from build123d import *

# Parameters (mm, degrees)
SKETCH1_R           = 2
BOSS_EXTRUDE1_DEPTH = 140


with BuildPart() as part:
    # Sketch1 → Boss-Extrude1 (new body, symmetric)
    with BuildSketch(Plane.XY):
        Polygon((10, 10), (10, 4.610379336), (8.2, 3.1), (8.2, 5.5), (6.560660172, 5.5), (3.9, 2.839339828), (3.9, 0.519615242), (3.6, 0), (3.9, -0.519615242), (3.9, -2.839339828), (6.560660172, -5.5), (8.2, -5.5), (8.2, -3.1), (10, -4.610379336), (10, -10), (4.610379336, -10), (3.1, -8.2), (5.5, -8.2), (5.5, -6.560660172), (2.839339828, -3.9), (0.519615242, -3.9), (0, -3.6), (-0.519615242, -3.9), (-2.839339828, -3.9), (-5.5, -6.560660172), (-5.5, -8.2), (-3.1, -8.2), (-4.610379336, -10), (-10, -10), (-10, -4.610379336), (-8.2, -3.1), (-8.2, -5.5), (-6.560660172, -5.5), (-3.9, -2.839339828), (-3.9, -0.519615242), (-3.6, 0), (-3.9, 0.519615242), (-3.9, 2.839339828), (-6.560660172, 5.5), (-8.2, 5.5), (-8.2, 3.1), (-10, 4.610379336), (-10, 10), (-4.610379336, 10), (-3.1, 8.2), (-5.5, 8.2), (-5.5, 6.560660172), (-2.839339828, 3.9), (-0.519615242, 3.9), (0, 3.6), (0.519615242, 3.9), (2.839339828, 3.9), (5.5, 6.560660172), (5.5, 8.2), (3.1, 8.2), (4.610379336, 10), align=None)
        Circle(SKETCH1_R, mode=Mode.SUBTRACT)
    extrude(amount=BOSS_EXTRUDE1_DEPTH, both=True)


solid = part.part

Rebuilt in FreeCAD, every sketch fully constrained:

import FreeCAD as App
import Part
import Sketcher
Q = App.Units.Quantity

doc = App.newDocument("Part")
body = doc.addObject("PartDesign::Body", "Body")

sketch1 = doc.addObject("Sketcher::SketchObject", "Sketch")
body.addObject(sketch1)
sketch1.AttachmentSupport = (doc.XY_Plane, [""])
sketch1.MapMode = "FlatFace"
sketch1.addGeometry(Part.LineSegment(App.Vector(10, 4.6, 0), App.Vector(10, 10, 0)), False)
sketch1.addGeometry(Part.LineSegment(App.Vector(10, 10, 0), App.Vector(4.6, 10, 0)), False)
sketch1.addGeometry(Part.LineSegment(App.Vector(4.6, 10, 0), App.Vector(3.1, 8.2, 0)), False)
sketch1.addGeometry(Part.LineSegment(App.Vector(3.1, 8.2, 0), App.Vector(5.5, 8.2, 0)), False)
sketch1.addGeometry(Part.LineSegment(App.Vector(5.5, 8.2, 0), App.Vector(5.5, 6.6, 0)), False)
sketch1.addGeometry(Part.LineSegment(App.Vector(5.5, 6.6, 0), App.Vector(2.8, 3.9, 0)), False)
sketch1.addGeometry(Part.LineSegment(App.Vector(2.8, 3.9, 0), App.Vector(0.5, 3.9, 0)), False)
sketch1.addGeometry(Part.LineSegment(App.Vector(0.5, 3.9, 0), App.Vector(0, 3.6, 0)), False)
sketch1.addGeometry(Part.LineSegment(App.Vector(0, 3.6, 0), App.Vector(-0.5, 3.9, 0)), False)
sketch1.addGeometry(Part.LineSegment(App.Vector(-0.5, 3.9, 0), App.Vector(-2.8, 3.9, 0)), False)
sketch1.addGeometry(Part.LineSegment(App.Vector(-2.8, 3.9, 0), App.Vector(-5.5, 6.6, 0)), False)
sketch1.addGeometry(Part.LineSegment(App.Vector(-5.5, 6.6, 0), App.Vector(-5.5, 8.2, 0)), False)
sketch1.addGeometry(Part.LineSegment(App.Vector(-5.5, 8.2, 0), App.Vector(-3.1, 8.2, 0)), False)
sketch1.addGeometry(Part.LineSegment(App.Vector(-3.1, 8.2, 0), App.Vector(-4.6, 10, 0)), False)
sketch1.addGeometry(Part.LineSegment(App.Vector(-4.6, 10, 0), App.Vector(-10, 10, 0)), False)
sketch1.addGeometry(Part.LineSegment(App.Vector(-10, 10, 0), App.Vector(-10, 4.6, 0)), False)
sketch1.addGeometry(Part.LineSegment(App.Vector(-10, 4.6, 0), App.Vector(-8.2, 3.1, 0)), False)
sketch1.addGeometry(Part.LineSegment(App.Vector(-8.2, 3.1, 0), App.Vector(-8.2, 5.5, 0)), False)
sketch1.addGeometry(Part.LineSegment(App.Vector(-8.2, 5.5, 0), App.Vector(-6.6, 5.5, 0)), False)
sketch1.addGeometry(Part.LineSegment(App.Vector(-6.6, 5.5, 0), App.Vector(-3.9, 2.8, 0)), False)
sketch1.addGeometry(Part.LineSegment(App.Vector(-3.9, 2.8, 0), App.Vector(-3.9, 0.5, 0)), False)
sketch1.addGeometry(Part.LineSegment(App.Vector(-3.9, 0.5, 0), App.Vector(-3.6, 0, 0)), False)
sketch1.addGeometry(Part.LineSegment(App.Vector(-3.6, 0, 0), App.Vector(-3.9, -0.5, 0)), False)
sketch1.addGeometry(Part.LineSegment(App.Vector(-3.9, -0.5, 0), App.Vector(-3.9, -2.8, 0)), False)
sketch1.addGeometry(Part.LineSegment(App.Vector(-3.9, -2.8, 0), App.Vector(-6.6, -5.5, 0)), False)
sketch1.addGeometry(Part.LineSegment(App.Vector(-6.6, -5.5, 0), App.Vector(-8.2, -5.5, 0)), False)
sketch1.addGeometry(Part.LineSegment(App.Vector(-8.2, -5.5, 0), App.Vector(-8.2, -3.1, 0)), False)
sketch1.addGeometry(Part.LineSegment(App.Vector(-8.2, -3.1, 0), App.Vector(-10, -4.6, 0)), False)
sketch1.addGeometry(Part.LineSegment(App.Vector(-10, -4.6, 0), App.Vector(-10, -10, 0)), False)
sketch1.addGeometry(Part.LineSegment(App.Vector(-10, -10, 0), App.Vector(-4.6, -10, 0)), False)
sketch1.addGeometry(Part.LineSegment(App.Vector(-4.6, -10, 0), App.Vector(-3.1, -8.2, 0)), False)
sketch1.addGeometry(Part.LineSegment(App.Vector(-3.1, -8.2, 0), App.Vector(-5.5, -8.2, 0)), False)
sketch1.addGeometry(Part.LineSegment(App.Vector(-5.5, -8.2, 0), App.Vector(-5.5, -6.6, 0)), False)
sketch1.addGeometry(Part.LineSegment(App.Vector(-5.5, -6.6, 0), App.Vector(-2.8, -3.9, 0)), False)
sketch1.addGeometry(Part.LineSegment(App.Vector(-2.8, -3.9, 0), App.Vector(-0.5, -3.9, 0)), False)
sketch1.addGeometry(Part.LineSegment(App.Vector(-0.5, -3.9, 0), App.Vector(0, -3.6, 0)), False)
sketch1.addGeometry(Part.LineSegment(App.Vector(0, -3.6, 0), App.Vector(0.5, -3.9, 0)), False)
sketch1.addGeometry(Part.LineSegment(App.Vector(0.5, -3.9, 0), App.Vector(2.8, -3.9, 0)), False)
sketch1.addGeometry(Part.LineSegment(App.Vector(2.8, -3.9, 0), App.Vector(5.5, -6.6, 0)), False)
sketch1.addGeometry(Part.LineSegment(App.Vector(5.5, -6.6, 0), App.Vector(5.5, -8.2, 0)), False)
sketch1.addGeometry(Part.LineSegment(App.Vector(5.5, -8.2, 0), App.Vector(3.1, -8.2, 0)), False)
sketch1.addGeometry(Part.LineSegment(App.Vector(3.1, -8.2, 0), App.Vector(4.6, -10, 0)), False)
sketch1.addGeometry(Part.LineSegment(App.Vector(4.6, -10, 0), App.Vector(10, -10, 0)), False)
sketch1.addGeometry(Part.LineSegment(App.Vector(10, -10, 0), App.Vector(10, -4.6, 0)), False)
sketch1.addGeometry(Part.LineSegment(App.Vector(10, -4.6, 0), App.Vector(8.2, -3.1, 0)), False)
sketch1.addGeometry(Part.LineSegment(App.Vector(8.2, -3.1, 0), App.Vector(8.2, -5.5, 0)), False)
sketch1.addGeometry(Part.LineSegment(App.Vector(8.2, -5.5, 0), App.Vector(6.6, -5.5, 0)), False)
sketch1.addGeometry(Part.LineSegment(App.Vector(6.6, -5.5, 0), App.Vector(3.9, -2.8, 0)), False)
sketch1.addGeometry(Part.LineSegment(App.Vector(3.9, -2.8, 0), App.Vector(3.9, -0.5, 0)), False)
sketch1.addGeometry(Part.LineSegment(App.Vector(3.9, -0.5, 0), App.Vector(3.6, 0, 0)), False)
sketch1.addGeometry(Part.LineSegment(App.Vector(3.6, 0, 0), App.Vector(3.9, 0.5, 0)), False)
sketch1.addGeometry(Part.LineSegment(App.Vector(3.9, 0.5, 0), App.Vector(3.9, 2.8, 0)), False)
sketch1.addGeometry(Part.LineSegment(App.Vector(3.9, 2.8, 0), App.Vector(6.6, 5.5, 0)), False)
sketch1.addGeometry(Part.LineSegment(App.Vector(6.6, 5.5, 0), App.Vector(8.2, 5.5, 0)), False)
sketch1.addGeometry(Part.LineSegment(App.Vector(8.2, 5.5, 0), App.Vector(8.2, 3.1, 0)), False)
sketch1.addGeometry(Part.LineSegment(App.Vector(8.2, 3.1, 0), App.Vector(10, 4.6, 0)), False)
sketch1.addGeometry(Part.Circle(App.Vector(0, 0, 0), App.Vector(0, 0, 1), 2), False)
sketch1.addConstraint(Sketcher.Constraint("Coincident", 0, 2, 1, 1))
sketch1.addConstraint(Sketcher.Constraint("Coincident", 1, 2, 2, 1))
sketch1.addConstraint(Sketcher.Constraint("Coincident", 2, 2, 3, 1))
sketch1.addConstraint(Sketcher.Constraint("Coincident", 3, 2, 4, 1))
sketch1.addConstraint(Sketcher.Constraint("Coincident", 4, 2, 5, 1))
sketch1.addConstraint(Sketcher.Constraint("Coincident", 5, 2, 6, 1))
sketch1.addConstraint(Sketcher.Constraint("Coincident", 6, 2, 7, 1))
sketch1.addConstraint(Sketcher.Constraint("Coincident", 7, 2, 8, 1))
sketch1.addConstraint(Sketcher.Constraint("Coincident", 8, 2, 9, 1))
sketch1.addConstraint(Sketcher.Constraint("Coincident", 9, 2, 10, 1))
sketch1.addConstraint(Sketcher.Constraint("Coincident", 10, 2, 11, 1))
sketch1.addConstraint(Sketcher.Constraint("Coincident", 11, 2, 12, 1))
sketch1.addConstraint(Sketcher.Constraint("Coincident", 12, 2, 13, 1))
sketch1.addConstraint(Sketcher.Constraint("Coincident", 13, 2, 14, 1))
sketch1.addConstraint(Sketcher.Constraint("Coincident", 14, 2, 15, 1))
sketch1.addConstraint(Sketcher.Constraint("Coincident", 15, 2, 16, 1))
sketch1.addConstraint(Sketcher.Constraint("Coincident", 16, 2, 17, 1))
sketch1.addConstraint(Sketcher.Constraint("Coincident", 17, 2, 18, 1))
sketch1.addConstraint(Sketcher.Constraint("Coincident", 18, 2, 19, 1))
sketch1.addConstraint(Sketcher.Constraint("Coincident", 19, 2, 20, 1))
sketch1.addConstraint(Sketcher.Constraint("Coincident", 20, 2, 21, 1))
sketch1.addConstraint(Sketcher.Constraint("Coincident", 21, 2, 22, 1))
sketch1.addConstraint(Sketcher.Constraint("Coincident", 22, 2, 23, 1))
sketch1.addConstraint(Sketcher.Constraint("Coincident", 23, 2, 24, 1))
sketch1.addConstraint(Sketcher.Constraint("Coincident", 24, 2, 25, 1))
sketch1.addConstraint(Sketcher.Constraint("Coincident", 25, 2, 26, 1))
sketch1.addConstraint(Sketcher.Constraint("Coincident", 26, 2, 27, 1))
sketch1.addConstraint(Sketcher.Constraint("Coincident", 27, 2, 28, 1))
sketch1.addConstraint(Sketcher.Constraint("Coincident", 28, 2, 29, 1))
sketch1.addConstraint(Sketcher.Constraint("Coincident", 29, 2, 30, 1))
sketch1.addConstraint(Sketcher.Constraint("Coincident", 30, 2, 31, 1))
sketch1.addConstraint(Sketcher.Constraint("Coincident", 31, 2, 32, 1))
sketch1.addConstraint(Sketcher.Constraint("Coincident", 32, 2, 33, 1))
sketch1.addConstraint(Sketcher.Constraint("Coincident", 33, 2, 34, 1))
sketch1.addConstraint(Sketcher.Constraint("Coincident", 34, 2, 35, 1))
sketch1.addConstraint(Sketcher.Constraint("Coincident", 35, 2, 36, 1))
sketch1.addConstraint(Sketcher.Constraint("Coincident", 36, 2, 37, 1))
sketch1.addConstraint(Sketcher.Constraint("Coincident", 37, 2, 38, 1))
sketch1.addConstraint(Sketcher.Constraint("Coincident", 38, 2, 39, 1))
sketch1.addConstraint(Sketcher.Constraint("Coincident", 39, 2, 40, 1))
sketch1.addConstraint(Sketcher.Constraint("Coincident", 40, 2, 41, 1))
sketch1.addConstraint(Sketcher.Constraint("Coincident", 41, 2, 42, 1))
sketch1.addConstraint(Sketcher.Constraint("Coincident", 42, 2, 43, 1))
sketch1.addConstraint(Sketcher.Constraint("Coincident", 43, 2, 44, 1))
sketch1.addConstraint(Sketcher.Constraint("Coincident", 44, 2, 45, 1))
sketch1.addConstraint(Sketcher.Constraint("Coincident", 45, 2, 46, 1))
sketch1.addConstraint(Sketcher.Constraint("Coincident", 46, 2, 47, 1))
sketch1.addConstraint(Sketcher.Constraint("Coincident", 47, 2, 48, 1))
sketch1.addConstraint(Sketcher.Constraint("Coincident", 48, 2, 49, 1))
sketch1.addConstraint(Sketcher.Constraint("Coincident", 49, 2, 50, 1))
sketch1.addConstraint(Sketcher.Constraint("Coincident", 50, 2, 51, 1))
sketch1.addConstraint(Sketcher.Constraint("Coincident", 51, 2, 52, 1))
sketch1.addConstraint(Sketcher.Constraint("Coincident", 52, 2, 53, 1))
sketch1.addConstraint(Sketcher.Constraint("Coincident", 53, 2, 54, 1))
sketch1.addConstraint(Sketcher.Constraint("Coincident", 54, 2, 55, 1))
sketch1.addConstraint(Sketcher.Constraint("Coincident", 55, 2, 0, 1))
sketch1.addConstraint(Sketcher.Constraint("Vertical", 0))
sketch1.addConstraint(Sketcher.Constraint("Horizontal", 1))
sketch1.addConstraint(Sketcher.Constraint("Horizontal", 3))
sketch1.addConstraint(Sketcher.Constraint("Vertical", 4))
sketch1.addConstraint(Sketcher.Constraint("Horizontal", 6))
sketch1.addConstraint(Sketcher.Constraint("Horizontal", 9))
sketch1.addConstraint(Sketcher.Constraint("Vertical", 11))
sketch1.addConstraint(Sketcher.Constraint("Horizontal", 12))
sketch1.addConstraint(Sketcher.Constraint("Horizontal", 14))
sketch1.addConstraint(Sketcher.Constraint("Vertical", 15))
sketch1.addConstraint(Sketcher.Constraint("Vertical", 17))
sketch1.addConstraint(Sketcher.Constraint("Horizontal", 18))
sketch1.addConstraint(Sketcher.Constraint("Vertical", 20))
sketch1.addConstraint(Sketcher.Constraint("Vertical", 23))
sketch1.addConstraint(Sketcher.Constraint("Horizontal", 25))
sketch1.addConstraint(Sketcher.Constraint("Vertical", 26))
sketch1.addConstraint(Sketcher.Constraint("Vertical", 28))
sketch1.addConstraint(Sketcher.Constraint("Horizontal", 29))
sketch1.addConstraint(Sketcher.Constraint("Horizontal", 31))
sketch1.addConstraint(Sketcher.Constraint("Vertical", 32))
sketch1.addConstraint(Sketcher.Constraint("Horizontal", 34))
sketch1.addConstraint(Sketcher.Constraint("Horizontal", 37))
sketch1.addConstraint(Sketcher.Constraint("Vertical", 39))
sketch1.addConstraint(Sketcher.Constraint("Horizontal", 40))
sketch1.addConstraint(Sketcher.Constraint("Horizontal", 42))
sketch1.addConstraint(Sketcher.Constraint("Vertical", 43))
sketch1.addConstraint(Sketcher.Constraint("Vertical", 45))
sketch1.addConstraint(Sketcher.Constraint("Horizontal", 46))
sketch1.addConstraint(Sketcher.Constraint("Vertical", 48))
sketch1.addConstraint(Sketcher.Constraint("Vertical", 51))
sketch1.addConstraint(Sketcher.Constraint("Horizontal", 53))
sketch1.addConstraint(Sketcher.Constraint("Vertical", 54))
sketch1.addConstraint(Sketcher.Constraint("Coincident", 56, 3, -1, 1))
sketch1.addConstraint(Sketcher.Constraint("Symmetric", 0, 2, 28, 2, -1, 1))
sketch1.addConstraint(Sketcher.Constraint("Symmetric", 2, 2, 30, 2, -1, 1))
sketch1.addConstraint(Sketcher.Constraint("Symmetric", 4, 2, 32, 2, -1, 1))
sketch1.addConstraint(Sketcher.Constraint("Symmetric", 5, 2, 33, 2, -1, 1))
sketch1.addConstraint(Sketcher.Constraint("Symmetric", 7, 2, 35, 2, -1, 1))
sketch1.addConstraint(Sketcher.Constraint("Symmetric", 8, 2, 36, 2, -1, 1))
sketch1.addConstraint(Sketcher.Constraint("Symmetric", 10, 2, 38, 2, -1, 1))
sketch1.addConstraint(Sketcher.Constraint("Symmetric", 12, 2, 40, 2, -1, 1))
sketch1.addConstraint(Sketcher.Constraint("Symmetric", 13, 2, 41, 2, -1, 1))
sketch1.addConstraint(Sketcher.Constraint("Symmetric", 15, 2, 43, 2, -1, 1))
sketch1.addConstraint(Sketcher.Constraint("Symmetric", 16, 2, 44, 2, -1, 1))
sketch1.addConstraint(Sketcher.Constraint("Symmetric", 18, 2, 46, 2, -1, 1))
sketch1.addConstraint(Sketcher.Constraint("Symmetric", 19, 2, 47, 2, -1, 1))
sketch1.addConstraint(Sketcher.Constraint("Symmetric", 21, 2, 49, 2, -1, 1))
sketch1.addConstraint(Sketcher.Constraint("Symmetric", 22, 2, 50, 2, -1, 1))
sketch1.addConstraint(Sketcher.Constraint("Symmetric", 24, 2, 52, 2, -1, 1))
sketch1.addConstraint(Sketcher.Constraint("Symmetric", 26, 2, 54, 2, -1, 1))
sketch1.addConstraint(Sketcher.Constraint("Symmetric", 6, 2, 8, 2, -2))
sketch1.addConstraint(Sketcher.Constraint("Symmetric", 4, 2, 10, 2, -2))
sketch1.addConstraint(Sketcher.Constraint("Symmetric", 2, 2, 12, 2, -2))
sketch1.addConstraint(Sketcher.Constraint("Symmetric", 1, 2, 13, 2, -2))
sketch1.addConstraint(Sketcher.Constraint("Symmetric", 27, 2, 43, 2, -2))
sketch1.addConstraint(Sketcher.Constraint("Symmetric", 26, 2, 44, 2, -2))
sketch1.addConstraint(Sketcher.Constraint("Symmetric", 24, 2, 46, 2, -2))
sketch1.addConstraint(Sketcher.Constraint("Symmetric", 23, 2, 47, 2, -2))
sketch1.addConstraint(Sketcher.Constraint("PointOnObject", 7, 2, -2))
sketch1.addConstraint(Sketcher.Constraint("PointOnObject", 21, 2, -1))
sketch1.addConstraint(Sketcher.Constraint("Perpendicular", 5, 10))
sketch1.addConstraint(Sketcher.Constraint("Perpendicular", 2, 16))
sketch1.addConstraint(Sketcher.Constraint("Parallel", 10, 19))
sketch1.addConstraint(Sketcher.Constraint("Perpendicular", 7, 21))
sketch1.addConstraint(Sketcher.Constraint("Perpendicular", 8, 22))
sketch1.addConstraint(Sketcher.Constraint("Perpendicular", 19, 24))
sketch1.addConstraint(Sketcher.Constraint("Perpendicular", 16, 30))
sketch1.addConstraint(Sketcher.Constraint("Perpendicular", 21, 35))
sketch1.addConstraint(Sketcher.Constraint("Perpendicular", 33, 38))
sketch1.addConstraint(Sketcher.Constraint("Perpendicular", 35, 49))
sketch1.addConstraint(Sketcher.Constraint("Perpendicular", 47, 52))
sketch1.addConstraint(Sketcher.Constraint("Perpendicular", 41, 55))
sketch1.addConstraint(Sketcher.Constraint("Equal", 42, 0))
sketch1.addConstraint(Sketcher.Constraint("Equal", 53, 4))
sketch1.addConstraint(Sketcher.Constraint("Equal", 40, 17))
sketch1.addConstraint(Sketcher.Constraint("Equal", 37, 20))
sketch1.addConstraint(Sketcher.Constraint("Equal", 13, 16))
sketch1.addConstraint(Sketcher.Constraint("Equal", 10, 19))
sketch1.addConstraint(Sketcher.Constraint("Equal", 8, 21))
sketch1.addConstraint(Sketcher.Constraint("Diameter", 56, 4.0))
sketch1.addConstraint(Sketcher.Constraint("Angle", 2, Q("-130 deg")))
sketch1.addConstraint(Sketcher.Constraint("Angle", 7, Q("-150 deg")))
sketch1.addConstraint(Sketcher.Constraint("DistanceX", 3, 1, 3, 2, 2.4))
sketch1.addConstraint(Sketcher.Constraint("DistanceX", -1, 1, 0, 2, 10.0))
sketch1.addConstraint(Sketcher.Constraint("Distance", 7, 0.6))
sketch1.addConstraint(Sketcher.Constraint("DistanceX", -1, 1, 2, 2, 3.1))
sketch1.addConstraint(Sketcher.Constraint("DistanceY", -1, 1, 2, 2, 8.2))
sketch1.addConstraint(Sketcher.Constraint("DistanceY", -1, 1, 5, 2, 3.9))
sketch1.addConstraint(Sketcher.Constraint("DistanceX", 18, 1, 18, 2, 1.63934))
pad1 = doc.addObject("PartDesign::Pad", "Pad")
body.addObject(pad1)
pad1.Profile = sketch1
pad1.Length = 280
pad1.Midplane = True

doc.recompute()
